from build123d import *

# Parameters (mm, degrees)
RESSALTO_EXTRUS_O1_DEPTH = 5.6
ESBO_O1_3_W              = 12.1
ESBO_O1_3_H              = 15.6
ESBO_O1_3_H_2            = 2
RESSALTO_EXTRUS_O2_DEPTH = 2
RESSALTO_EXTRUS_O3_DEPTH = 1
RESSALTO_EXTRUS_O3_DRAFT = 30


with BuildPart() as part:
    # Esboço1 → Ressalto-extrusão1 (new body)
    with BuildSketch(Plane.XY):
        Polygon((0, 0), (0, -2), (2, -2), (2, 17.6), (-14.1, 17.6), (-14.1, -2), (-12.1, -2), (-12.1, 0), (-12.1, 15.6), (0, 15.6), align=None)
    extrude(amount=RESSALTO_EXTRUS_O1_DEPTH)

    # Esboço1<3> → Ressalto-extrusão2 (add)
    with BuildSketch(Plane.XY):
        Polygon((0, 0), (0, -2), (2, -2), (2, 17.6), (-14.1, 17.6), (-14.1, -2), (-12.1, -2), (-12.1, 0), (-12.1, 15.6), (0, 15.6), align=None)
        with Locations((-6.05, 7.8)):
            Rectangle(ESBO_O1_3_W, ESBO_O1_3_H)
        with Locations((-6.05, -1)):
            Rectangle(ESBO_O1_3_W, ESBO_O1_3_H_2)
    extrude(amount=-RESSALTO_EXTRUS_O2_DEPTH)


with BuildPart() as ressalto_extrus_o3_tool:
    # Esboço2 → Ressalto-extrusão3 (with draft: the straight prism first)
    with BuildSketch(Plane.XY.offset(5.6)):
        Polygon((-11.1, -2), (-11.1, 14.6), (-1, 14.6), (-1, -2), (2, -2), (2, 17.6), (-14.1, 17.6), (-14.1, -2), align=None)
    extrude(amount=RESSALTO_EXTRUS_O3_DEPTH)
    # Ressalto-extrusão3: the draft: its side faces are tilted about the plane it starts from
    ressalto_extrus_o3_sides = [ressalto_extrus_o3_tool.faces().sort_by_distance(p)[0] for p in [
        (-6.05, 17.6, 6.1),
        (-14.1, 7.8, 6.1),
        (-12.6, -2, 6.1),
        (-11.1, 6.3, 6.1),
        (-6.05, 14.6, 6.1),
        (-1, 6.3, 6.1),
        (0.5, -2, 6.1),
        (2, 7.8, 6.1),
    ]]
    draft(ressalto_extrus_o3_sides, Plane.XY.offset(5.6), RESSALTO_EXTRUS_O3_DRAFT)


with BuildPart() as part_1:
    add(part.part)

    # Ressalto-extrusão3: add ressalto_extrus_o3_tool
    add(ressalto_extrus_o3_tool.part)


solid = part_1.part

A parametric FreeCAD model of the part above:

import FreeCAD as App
import Part
import Sketcher

V = App.Vector


def faces_at(feature, points):
    """Names of the faces that lie closest to the given points."""
    faces = feature.Shape.Faces
    near = lambda p: min(range(len(faces)), key=lambda i: faces[i].distToShape(Part.Vertex(*p))[0])
    return sorted({f"Face{near(p) + 1}" for p in points})

doc = App.newDocument("Part")
body = doc.addObject("PartDesign::Body", "Body")

sketch1 = body.newObject("Sketcher::SketchObject", "Sketch")
sketch1.AttachmentSupport = (doc.getObject("XY_Plane"), [""])
sketch1.MapMode = "FlatFace"
sketch1.addGeometry([
    Part.LineSegment(V(0, -2, 0), V(2, -2, 0)),
    Part.LineSegment(V(2, -2, 0), V(2, 17.6, 0)),
    Part.LineSegment(V(2, 17.6, 0), V(-14.1, 17.6, 0)),
    Part.LineSegment(V(-14.1, 17.6, 0), V(-14.1, -2, 0)),
    Part.LineSegment(V(-14.1, -2, 0), V(-12.1, -2, 0)),
    Part.LineSegment(V(-12.1, -2, 0), V(-12.1, 15.6, 0)),
    Part.LineSegment(V(-12.1, 15.6, 0), V(0, 15.6, 0)),
    Part.LineSegment(V(0, 15.6, 0), V(0, -2, 0)),
], False)
sketch1.addConstraint([
    Sketcher.Constraint("Coincident", 0, 2, 1, 1),
    Sketcher.Constraint("Coincident", 1, 2, 2, 1),
    Sketcher.Constraint("Coincident", 2, 2, 3, 1),
    Sketcher.Constraint("Coincident", 3, 2, 4, 1),
    Sketcher.Constraint("Coincident", 4, 2, 5, 1),
    Sketcher.Constraint("Coincident", 5, 2, 6, 1),
    Sketcher.Constraint("Coincident", 6, 2, 7, 1),
    Sketcher.Constraint("Coincident", 7, 2, 0, 1),
    Sketcher.Constraint("Horizontal", 0),
    Sketcher.Constraint("Vertical", 1),
    Sketcher.Constraint("Horizontal", 2),
    Sketcher.Constraint("Vertical", 3),
    Sketcher.Constraint("Horizontal", 4),
    Sketcher.Constraint("Vertical", 5),
    Sketcher.Constraint("Horizontal", 6),
    Sketcher.Constraint("Vertical", 7),
    Sketcher.Constraint("PointOnObject", 6, 2, -2),
    Sketcher.Constraint("Horizontal", 0, 2, 3, 2),
    Sketcher.Constraint("Equal", 0, 4),
    Sketcher.Constraint("DistanceX", 0, 1, 0, 2, 2.0),
    Sketcher.Constraint("DistanceX", 2, 2, 2, 1, 16.1),
    Sketcher.Constraint("DistanceY", 1, 1, 1, 2, 19.6),
    Sketcher.Constraint("DistanceY", 5, 1, 5, 2, 17.6),
    Sketcher.Constraint("DistanceY", 0, 2, -1, 1, 2.0),
])
pad1 = body.newObject("PartDesign::Pad", "Pad")
pad1.Profile = sketch1
pad1.Length = 5.6

sketch2 = body.newObject("Sketcher::SketchObject", "Sketch001")
sketch2.AttachmentSupport = (doc.getObject("XY_Plane"), [""])
sketch2.MapMode = "FlatFace"
sketch2.addGeometry([
    Part.LineSegment(V(2, -2, 0), V(2, 18, 0)),
    Part.LineSegment(V(2, 18, 0), V(-14, 18, 0)),
    Part.LineSegment(V(-14, 18, 0), V(-14, -2, 0)),
    Part.LineSegment(V(-14, -2, 0), V(2, -2, 0)),
], False)
sketch2.addConstraint([
    Sketcher.Constraint("Coincident", 0, 2, 1, 1),
    Sketcher.Constraint("Coincident", 1, 2, 2, 1),
    Sketcher.Constraint("Coincident", 2, 2, 3, 1),
    Sketcher.Constraint("Coincident", 3, 2, 0, 1),
    Sketcher.Constraint("Vertical", 0),
    Sketcher.Constraint("Horizontal", 1),
    Sketcher.Constraint("Vertical", 2),
    Sketcher.Constraint("Horizontal", 3),
    Sketcher.Constraint("DistanceX", 1, 2, 1, 1, 16.1),
    Sketcher.Constraint("DistanceY", 0, 1, 0, 2, 19.6),
    Sketcher.Constraint("DistanceX", -1, 1, 0, 2, 2.0),
    Sketcher.Constraint("DistanceY", 2, 2, -1, 1, 2.0),
])
pad2 = body.newObject("PartDesign::Pad", "Pad001")
pad2.Profile = sketch2
pad2.Length = 2
pad2.Reversed = True
body2 = doc.addObject("PartDesign::Body", "Body001")

sketch3 = body2.newObject("Sketcher::SketchObject", "Sketch002")
sketch3.AttachmentSupport = (doc.getObject("XY_Plane001"), [""])
sketch3.MapMode = "FlatFace"
sketch3.AttachmentOffset = App.Placement(V(0, 0, 5.6), App.Rotation())
sketch3.addGeometry([
    Part.LineSegment(V(-11.1, -2, 0), V(-11.1, 14.6, 0)),
    Part.LineSegment(V(-11.1, 14.6, 0), V(-1, 14.6, 0)),
    Part.LineSegment(V(-1, 14.6, 0), V(-1, -2, 0)),
    Part.LineSegment(V(-1, -2, 0), V(2, -2, 0)),
    Part.LineSegment(V(2, -2, 0), V(2, 17.6, 0)),
    Part.LineSegment(V(2, 17.6, 0), V(-14.1, 17.6, 0)),
    Part.LineSegment(V(-14.1, 17.6, 0), V(-14.1, -2, 0)),
    Part.LineSegment(V(-14.1, -2, 0), V(-11.1, -2, 0)),
], False)
sketch3.addConstraint([
    Sketcher.Constraint("Coincident", 0, 2, 1, 1),
    Sketcher.Constraint("Coincident", 1, 2, 2, 1),
    Sketcher.Constraint("Coincident", 2, 2, 3, 1),
    Sketcher.Constraint("Coincident", 3, 2, 4, 1),
    Sketcher.Constraint("Coincident", 4, 2, 5, 1),
    Sketcher.Constraint("Coincident", 5, 2, 6, 1),
    Sketcher.Constraint("Coincident", 6, 2, 7, 1),
    Sketcher.Constraint("Coincident", 7, 2, 0, 1),
    Sketcher.Constraint("Vertical", 0),
    Sketcher.Constraint("Horizontal", 1),
    Sketcher.Constraint("Vertical", 2),
    Sketcher.Constraint("Horizontal", 3),
    Sketcher.Constraint("Vertical", 4),
    Sketcher.Constraint("Horizontal", 5),
    Sketcher.Constraint("Vertical", 6),
    Sketcher.Constraint("Horizontal", 7),
    Sketcher.Constraint("Horizontal", 3, 2, 6, 2),
    Sketcher.Constraint("Equal", 3, 7),
    Sketcher.Constraint("DistanceX", 3, 1, 3, 2, 3.0),
    Sketcher.Constraint("DistanceX", 1, 1, 1, 2, 10.1),
    Sketcher.Constraint("DistanceY", 0, 1, 0, 2, 16.6),
    Sketcher.Constraint("DistanceY", 4, 1, 4, 2, 19.6),
    Sketcher.Constraint("DistanceX", 1, 2, -1, 1, 1.0),
    Sketcher.Constraint("DistanceY", 2, 2, -1, 1, 2.0),
])
pad3 = body2.newObject("PartDesign::Pad", "Pad002")
pad3.Profile = sketch3
pad3.Length = 1
doc.recompute()

datumplane = body2.newObject("PartDesign::Plane", "DatumPlane")
datumplane.AttachmentSupport = (doc.getObject("XY_Plane001"), [""])
datumplane.MapMode = "FlatFace"
datumplane.AttachmentOffset = App.Placement(V(0, 0, 5.6), App.Rotation())
draft = body2.newObject("PartDesign::Draft", "Draft")
draft.Base = (pad3, faces_at(pad3, [
    (-6.05, 17.6, 6.1),
    (-14.1, 7.8, 6.1),
    (-12.6, -2, 6.1),
    (-11.1, 6.3, 6.1),
    (-6.05, 14.6, 6.1),
    (-1, 6.3, 6.1),
    (0.5, -2, 6.1),
    (2, 7.8, 6.1),
]))
draft.NeutralPlane = (datumplane, [""])
draft.Angle = 30
draft.Reversed = False
doc.recompute()

boolean = body.newObject("PartDesign::Boolean", "Boolean")
boolean.Type = "Fuse"
boolean.addObjects([body2])

doc.recompute()
